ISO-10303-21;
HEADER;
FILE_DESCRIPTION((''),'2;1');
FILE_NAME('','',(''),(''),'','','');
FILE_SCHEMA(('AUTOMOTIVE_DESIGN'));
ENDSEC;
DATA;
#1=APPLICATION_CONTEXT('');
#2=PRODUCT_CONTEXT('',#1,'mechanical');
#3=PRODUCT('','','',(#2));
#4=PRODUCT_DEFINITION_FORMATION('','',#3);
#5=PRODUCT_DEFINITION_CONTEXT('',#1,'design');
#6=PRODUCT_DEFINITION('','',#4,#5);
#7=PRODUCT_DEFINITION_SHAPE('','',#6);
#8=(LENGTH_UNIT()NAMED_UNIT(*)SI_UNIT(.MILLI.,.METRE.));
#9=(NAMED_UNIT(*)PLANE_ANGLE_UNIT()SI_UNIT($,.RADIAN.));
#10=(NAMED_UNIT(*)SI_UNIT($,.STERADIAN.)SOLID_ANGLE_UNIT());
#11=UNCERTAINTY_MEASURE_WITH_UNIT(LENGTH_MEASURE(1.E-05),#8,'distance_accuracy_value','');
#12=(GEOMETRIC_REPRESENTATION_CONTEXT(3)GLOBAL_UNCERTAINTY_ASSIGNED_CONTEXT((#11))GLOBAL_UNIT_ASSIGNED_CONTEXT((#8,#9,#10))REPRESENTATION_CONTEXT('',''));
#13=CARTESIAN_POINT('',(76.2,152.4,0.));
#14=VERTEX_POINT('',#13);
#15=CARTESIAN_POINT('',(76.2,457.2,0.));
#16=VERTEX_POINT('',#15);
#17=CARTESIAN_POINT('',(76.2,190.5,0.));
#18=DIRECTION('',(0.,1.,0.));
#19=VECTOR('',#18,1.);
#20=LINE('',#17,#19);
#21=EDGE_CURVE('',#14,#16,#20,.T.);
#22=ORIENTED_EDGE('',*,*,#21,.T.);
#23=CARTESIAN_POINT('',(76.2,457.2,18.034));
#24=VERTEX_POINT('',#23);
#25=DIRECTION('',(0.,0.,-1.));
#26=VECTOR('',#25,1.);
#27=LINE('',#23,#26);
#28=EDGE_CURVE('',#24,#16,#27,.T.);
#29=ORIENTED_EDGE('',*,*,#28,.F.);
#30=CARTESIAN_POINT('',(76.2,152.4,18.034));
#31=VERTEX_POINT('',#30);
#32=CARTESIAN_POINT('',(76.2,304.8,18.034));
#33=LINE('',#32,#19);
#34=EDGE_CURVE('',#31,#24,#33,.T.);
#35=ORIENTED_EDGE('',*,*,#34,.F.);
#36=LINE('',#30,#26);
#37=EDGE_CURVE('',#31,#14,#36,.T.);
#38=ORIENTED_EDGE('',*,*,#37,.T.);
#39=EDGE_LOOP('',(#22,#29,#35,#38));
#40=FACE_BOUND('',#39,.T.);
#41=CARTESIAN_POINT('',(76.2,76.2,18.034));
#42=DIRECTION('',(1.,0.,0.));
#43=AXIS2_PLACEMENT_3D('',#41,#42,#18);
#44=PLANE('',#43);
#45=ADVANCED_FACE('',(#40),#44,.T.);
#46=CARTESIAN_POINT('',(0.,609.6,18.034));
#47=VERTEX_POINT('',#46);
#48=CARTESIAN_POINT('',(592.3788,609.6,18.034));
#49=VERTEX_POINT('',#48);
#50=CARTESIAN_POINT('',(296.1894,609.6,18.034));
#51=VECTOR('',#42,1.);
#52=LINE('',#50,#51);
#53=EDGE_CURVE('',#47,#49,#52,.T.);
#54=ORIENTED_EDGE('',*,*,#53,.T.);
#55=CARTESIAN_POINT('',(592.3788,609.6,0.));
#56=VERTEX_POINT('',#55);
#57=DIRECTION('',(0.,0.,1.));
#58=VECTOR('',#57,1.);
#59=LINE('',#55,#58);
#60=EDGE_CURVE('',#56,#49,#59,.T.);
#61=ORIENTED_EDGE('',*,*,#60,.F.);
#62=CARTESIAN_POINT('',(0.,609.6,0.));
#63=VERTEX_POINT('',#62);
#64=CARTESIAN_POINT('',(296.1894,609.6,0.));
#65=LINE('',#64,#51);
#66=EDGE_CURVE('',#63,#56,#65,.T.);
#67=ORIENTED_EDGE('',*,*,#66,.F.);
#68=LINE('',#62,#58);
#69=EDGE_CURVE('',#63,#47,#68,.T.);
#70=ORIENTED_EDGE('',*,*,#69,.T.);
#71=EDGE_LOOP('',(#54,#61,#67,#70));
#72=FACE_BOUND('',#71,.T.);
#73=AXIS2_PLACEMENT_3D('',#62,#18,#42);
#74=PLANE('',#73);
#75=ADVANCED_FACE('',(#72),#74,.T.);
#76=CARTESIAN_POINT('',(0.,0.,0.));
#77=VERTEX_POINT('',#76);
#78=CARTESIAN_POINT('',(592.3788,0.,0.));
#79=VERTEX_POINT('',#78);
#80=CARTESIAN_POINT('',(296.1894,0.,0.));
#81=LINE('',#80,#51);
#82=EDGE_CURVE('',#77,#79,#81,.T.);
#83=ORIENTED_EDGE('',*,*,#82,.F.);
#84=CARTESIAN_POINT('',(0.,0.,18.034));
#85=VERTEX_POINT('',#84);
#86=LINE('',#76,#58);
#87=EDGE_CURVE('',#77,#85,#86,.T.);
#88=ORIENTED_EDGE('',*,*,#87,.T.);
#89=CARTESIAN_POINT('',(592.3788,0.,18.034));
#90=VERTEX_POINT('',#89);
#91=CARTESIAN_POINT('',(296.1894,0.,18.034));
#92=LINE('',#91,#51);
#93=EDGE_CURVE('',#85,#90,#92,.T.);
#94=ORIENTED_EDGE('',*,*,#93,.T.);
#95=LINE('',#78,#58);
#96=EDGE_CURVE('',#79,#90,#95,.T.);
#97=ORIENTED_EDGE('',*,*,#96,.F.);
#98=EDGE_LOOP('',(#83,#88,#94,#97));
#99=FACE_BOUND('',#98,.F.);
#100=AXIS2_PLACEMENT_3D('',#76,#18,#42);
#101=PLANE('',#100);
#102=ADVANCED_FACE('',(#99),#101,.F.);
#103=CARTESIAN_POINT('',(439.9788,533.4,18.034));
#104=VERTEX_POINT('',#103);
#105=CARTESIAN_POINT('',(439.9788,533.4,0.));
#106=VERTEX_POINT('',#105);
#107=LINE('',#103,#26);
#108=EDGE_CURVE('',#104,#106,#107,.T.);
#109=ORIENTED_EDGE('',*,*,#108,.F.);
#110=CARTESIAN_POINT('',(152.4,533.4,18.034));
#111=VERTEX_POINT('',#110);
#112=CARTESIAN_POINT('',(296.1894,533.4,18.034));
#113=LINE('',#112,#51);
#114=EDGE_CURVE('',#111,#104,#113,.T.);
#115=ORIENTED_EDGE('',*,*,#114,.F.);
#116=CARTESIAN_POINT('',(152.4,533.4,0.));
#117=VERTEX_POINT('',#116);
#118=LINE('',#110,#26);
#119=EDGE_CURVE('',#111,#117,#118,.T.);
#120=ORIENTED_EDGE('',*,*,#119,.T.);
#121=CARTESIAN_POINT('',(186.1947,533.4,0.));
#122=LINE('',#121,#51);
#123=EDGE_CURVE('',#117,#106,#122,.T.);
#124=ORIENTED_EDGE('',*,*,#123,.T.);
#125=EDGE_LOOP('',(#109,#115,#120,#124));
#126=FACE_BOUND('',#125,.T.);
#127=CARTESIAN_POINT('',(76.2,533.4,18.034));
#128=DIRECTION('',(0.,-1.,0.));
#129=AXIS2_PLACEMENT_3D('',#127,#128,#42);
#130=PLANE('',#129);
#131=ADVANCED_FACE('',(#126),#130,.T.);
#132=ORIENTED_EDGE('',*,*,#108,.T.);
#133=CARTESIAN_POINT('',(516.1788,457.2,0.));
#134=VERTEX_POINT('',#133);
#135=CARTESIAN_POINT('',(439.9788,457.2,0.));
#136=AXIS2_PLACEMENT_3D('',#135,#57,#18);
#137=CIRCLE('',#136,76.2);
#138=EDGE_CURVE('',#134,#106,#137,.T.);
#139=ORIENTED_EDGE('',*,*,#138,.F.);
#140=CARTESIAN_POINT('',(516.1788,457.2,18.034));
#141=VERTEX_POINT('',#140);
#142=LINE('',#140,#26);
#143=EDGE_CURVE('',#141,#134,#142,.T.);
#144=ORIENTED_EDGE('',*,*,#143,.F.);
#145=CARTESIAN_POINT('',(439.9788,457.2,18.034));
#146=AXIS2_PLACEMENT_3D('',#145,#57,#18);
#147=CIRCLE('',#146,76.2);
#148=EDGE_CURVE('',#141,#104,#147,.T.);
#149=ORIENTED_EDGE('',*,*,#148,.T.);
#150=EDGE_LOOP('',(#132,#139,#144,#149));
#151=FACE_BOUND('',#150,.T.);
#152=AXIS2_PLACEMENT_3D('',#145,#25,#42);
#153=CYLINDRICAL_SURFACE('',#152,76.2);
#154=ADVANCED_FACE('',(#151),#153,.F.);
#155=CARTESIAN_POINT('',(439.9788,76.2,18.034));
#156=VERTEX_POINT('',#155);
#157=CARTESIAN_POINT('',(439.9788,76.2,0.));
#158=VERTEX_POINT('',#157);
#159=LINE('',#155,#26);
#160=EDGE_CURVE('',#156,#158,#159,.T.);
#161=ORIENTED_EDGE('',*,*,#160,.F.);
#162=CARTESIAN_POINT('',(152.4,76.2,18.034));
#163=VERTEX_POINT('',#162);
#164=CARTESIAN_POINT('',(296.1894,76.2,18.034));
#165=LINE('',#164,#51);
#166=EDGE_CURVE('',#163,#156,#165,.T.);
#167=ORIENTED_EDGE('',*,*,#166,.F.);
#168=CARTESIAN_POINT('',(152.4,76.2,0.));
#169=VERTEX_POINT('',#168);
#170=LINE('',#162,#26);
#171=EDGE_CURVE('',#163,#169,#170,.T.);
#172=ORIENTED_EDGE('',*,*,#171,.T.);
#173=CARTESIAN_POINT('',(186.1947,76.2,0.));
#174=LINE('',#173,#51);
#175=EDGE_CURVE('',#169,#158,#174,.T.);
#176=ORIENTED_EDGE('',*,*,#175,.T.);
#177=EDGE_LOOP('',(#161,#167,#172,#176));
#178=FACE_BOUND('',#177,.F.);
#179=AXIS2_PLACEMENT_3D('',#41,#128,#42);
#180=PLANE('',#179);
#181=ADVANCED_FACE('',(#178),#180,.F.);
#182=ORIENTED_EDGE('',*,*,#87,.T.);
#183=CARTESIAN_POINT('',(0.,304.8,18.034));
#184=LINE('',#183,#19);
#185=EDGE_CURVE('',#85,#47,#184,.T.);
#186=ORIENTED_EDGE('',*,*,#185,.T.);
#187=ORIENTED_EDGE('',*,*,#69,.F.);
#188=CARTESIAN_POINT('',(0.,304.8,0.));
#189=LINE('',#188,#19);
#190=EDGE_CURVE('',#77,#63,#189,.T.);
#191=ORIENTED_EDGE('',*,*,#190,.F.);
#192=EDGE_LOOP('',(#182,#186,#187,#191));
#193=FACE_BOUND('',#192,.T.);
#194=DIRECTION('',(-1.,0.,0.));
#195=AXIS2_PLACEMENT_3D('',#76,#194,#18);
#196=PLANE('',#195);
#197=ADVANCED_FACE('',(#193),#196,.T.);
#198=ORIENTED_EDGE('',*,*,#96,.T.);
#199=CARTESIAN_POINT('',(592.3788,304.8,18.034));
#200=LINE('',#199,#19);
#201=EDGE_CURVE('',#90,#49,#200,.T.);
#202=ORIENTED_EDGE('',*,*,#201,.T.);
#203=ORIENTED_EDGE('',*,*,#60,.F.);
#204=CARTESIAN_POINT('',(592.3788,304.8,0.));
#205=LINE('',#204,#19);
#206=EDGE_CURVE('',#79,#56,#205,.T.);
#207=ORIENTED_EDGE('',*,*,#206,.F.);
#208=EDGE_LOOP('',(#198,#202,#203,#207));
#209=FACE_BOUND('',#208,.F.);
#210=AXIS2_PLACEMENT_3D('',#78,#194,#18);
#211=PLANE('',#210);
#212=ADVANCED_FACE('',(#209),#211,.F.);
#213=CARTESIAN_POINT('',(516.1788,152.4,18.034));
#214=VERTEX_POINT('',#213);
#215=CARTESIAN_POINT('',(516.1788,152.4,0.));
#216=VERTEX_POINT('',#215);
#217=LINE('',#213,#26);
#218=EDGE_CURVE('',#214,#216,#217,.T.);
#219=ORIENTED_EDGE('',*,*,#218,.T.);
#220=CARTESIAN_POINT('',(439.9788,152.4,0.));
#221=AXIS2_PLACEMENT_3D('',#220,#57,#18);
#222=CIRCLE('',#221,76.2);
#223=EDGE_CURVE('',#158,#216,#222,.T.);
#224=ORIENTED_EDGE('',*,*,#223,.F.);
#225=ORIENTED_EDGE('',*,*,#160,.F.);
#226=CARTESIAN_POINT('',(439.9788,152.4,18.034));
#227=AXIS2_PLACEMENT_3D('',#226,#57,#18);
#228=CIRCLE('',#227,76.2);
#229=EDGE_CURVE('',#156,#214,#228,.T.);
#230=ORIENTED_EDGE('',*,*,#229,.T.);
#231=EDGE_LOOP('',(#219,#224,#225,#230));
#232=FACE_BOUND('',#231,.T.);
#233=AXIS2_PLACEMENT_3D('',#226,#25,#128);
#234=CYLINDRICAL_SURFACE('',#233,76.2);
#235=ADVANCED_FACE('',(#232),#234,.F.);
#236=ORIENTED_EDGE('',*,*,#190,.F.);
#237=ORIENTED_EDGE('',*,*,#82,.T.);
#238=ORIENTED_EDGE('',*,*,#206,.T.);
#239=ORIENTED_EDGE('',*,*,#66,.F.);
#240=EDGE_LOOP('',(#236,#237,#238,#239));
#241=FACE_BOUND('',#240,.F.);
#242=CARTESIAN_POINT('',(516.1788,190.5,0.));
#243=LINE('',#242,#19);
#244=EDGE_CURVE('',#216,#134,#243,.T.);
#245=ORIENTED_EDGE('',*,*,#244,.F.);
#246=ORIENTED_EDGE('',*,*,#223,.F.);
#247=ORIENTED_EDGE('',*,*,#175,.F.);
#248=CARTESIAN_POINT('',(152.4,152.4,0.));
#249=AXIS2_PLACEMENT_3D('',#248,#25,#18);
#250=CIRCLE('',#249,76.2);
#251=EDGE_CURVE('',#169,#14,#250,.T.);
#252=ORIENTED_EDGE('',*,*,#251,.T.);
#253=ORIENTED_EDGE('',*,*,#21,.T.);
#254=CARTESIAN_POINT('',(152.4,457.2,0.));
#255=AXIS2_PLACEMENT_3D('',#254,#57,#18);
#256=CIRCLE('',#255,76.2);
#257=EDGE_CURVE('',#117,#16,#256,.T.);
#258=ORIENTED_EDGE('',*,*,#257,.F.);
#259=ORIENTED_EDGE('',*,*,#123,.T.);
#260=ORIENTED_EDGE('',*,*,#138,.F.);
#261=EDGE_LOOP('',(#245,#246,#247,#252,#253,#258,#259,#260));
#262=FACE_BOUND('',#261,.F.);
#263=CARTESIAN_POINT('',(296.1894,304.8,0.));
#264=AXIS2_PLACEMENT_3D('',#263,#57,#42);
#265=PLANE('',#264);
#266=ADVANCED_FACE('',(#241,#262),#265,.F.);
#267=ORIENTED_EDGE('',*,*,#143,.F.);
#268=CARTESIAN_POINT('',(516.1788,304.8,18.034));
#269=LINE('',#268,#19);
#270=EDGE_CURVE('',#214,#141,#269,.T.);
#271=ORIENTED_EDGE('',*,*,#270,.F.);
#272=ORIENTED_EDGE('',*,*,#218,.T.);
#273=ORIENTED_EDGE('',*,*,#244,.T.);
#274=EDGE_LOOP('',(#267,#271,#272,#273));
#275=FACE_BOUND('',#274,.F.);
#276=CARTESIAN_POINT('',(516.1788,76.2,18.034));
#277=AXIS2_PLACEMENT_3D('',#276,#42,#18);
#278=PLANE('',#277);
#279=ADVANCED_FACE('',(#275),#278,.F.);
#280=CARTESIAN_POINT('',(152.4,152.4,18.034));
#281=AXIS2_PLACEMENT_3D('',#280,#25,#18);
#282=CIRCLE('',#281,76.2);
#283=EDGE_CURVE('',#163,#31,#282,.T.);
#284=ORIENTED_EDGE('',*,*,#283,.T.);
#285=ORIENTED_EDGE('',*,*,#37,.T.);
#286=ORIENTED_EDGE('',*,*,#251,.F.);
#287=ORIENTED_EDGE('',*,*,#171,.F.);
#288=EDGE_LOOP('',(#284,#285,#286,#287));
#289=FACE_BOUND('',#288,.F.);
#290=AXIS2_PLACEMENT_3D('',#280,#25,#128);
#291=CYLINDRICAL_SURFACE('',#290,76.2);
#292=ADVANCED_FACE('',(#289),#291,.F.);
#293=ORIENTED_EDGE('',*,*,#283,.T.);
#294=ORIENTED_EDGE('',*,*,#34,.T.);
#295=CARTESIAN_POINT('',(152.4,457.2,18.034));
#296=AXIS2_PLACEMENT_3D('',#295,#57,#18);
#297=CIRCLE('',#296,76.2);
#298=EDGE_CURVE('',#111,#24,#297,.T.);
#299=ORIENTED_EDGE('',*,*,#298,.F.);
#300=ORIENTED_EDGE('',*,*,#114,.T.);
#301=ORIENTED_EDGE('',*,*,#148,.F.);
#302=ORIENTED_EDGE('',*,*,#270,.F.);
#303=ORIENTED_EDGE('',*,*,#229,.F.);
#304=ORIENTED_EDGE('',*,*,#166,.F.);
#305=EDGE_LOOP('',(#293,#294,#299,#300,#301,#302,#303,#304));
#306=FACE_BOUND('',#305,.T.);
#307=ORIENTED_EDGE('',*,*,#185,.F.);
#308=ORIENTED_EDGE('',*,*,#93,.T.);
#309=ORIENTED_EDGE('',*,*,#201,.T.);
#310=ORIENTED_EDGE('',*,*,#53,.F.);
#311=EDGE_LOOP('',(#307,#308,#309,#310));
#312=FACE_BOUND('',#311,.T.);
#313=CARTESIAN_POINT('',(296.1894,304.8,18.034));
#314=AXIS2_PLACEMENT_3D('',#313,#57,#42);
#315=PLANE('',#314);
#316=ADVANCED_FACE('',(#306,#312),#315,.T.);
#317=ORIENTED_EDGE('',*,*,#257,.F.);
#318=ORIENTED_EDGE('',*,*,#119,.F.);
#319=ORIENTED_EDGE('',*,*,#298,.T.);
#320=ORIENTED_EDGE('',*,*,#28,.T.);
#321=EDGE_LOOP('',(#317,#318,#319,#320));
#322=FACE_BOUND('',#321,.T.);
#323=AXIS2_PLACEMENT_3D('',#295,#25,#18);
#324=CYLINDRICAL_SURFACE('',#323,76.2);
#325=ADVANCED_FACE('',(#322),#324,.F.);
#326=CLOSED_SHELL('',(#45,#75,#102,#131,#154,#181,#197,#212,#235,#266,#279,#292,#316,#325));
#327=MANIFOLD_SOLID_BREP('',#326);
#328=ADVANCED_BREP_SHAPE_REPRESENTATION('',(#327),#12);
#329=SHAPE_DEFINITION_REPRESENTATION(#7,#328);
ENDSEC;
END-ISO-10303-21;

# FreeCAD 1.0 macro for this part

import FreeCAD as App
import Part
import Sketcher

V = App.Vector
Q = App.Units.Quantity


def edges_at(feature, points):
    """Names of the edges that pass closest to the given points."""
    edges = feature.Shape.Edges
    near = lambda p: min(range(len(edges)), key=lambda i: edges[i].distToShape(Part.Vertex(*p))[0])
    return sorted({f"Edge{near(p) + 1}" for p in points})


def add_polygon(sketch, points):
    """Adds a closed chain of lines whose ends are joined by coincident constraints."""
    first, n = sketch.GeometryCount, len(points)
    for a, b in zip(points, points[1:] + points[:1]):
        sketch.addGeometry(Part.LineSegment(App.Vector(*a, 0), App.Vector(*b, 0)), False)
    for i in range(n):
        sketch.addConstraint(Sketcher.Constraint("Coincident", first + i, 2, first + (i + 1) % n, 1))

doc = App.newDocument("Part")
body = doc.addObject("PartDesign::Body", "Body")

# Sketch on XY plane
sketch1 = body.newObject("Sketcher::SketchObject", "Sketch")
sketch1.AttachmentSupport = (doc.getObject("XY_Plane"), [""])
sketch1.MapMode = "FlatFace"
add_polygon(sketch1, [(0, 610), (0, 0), (592, 0), (592, 610)])  # lines 0-3
sketch1.addConstraint([
    Sketcher.Constraint("Vertical", 0),
    Sketcher.Constraint("Horizontal", 1),
    Sketcher.Constraint("Vertical", 2),
    Sketcher.Constraint("Horizontal", 3),
    Sketcher.Constraint("Coincident", 0, 2, -1, 1),
    Sketcher.Constraint("DistanceY", 0, 2, 0, 1, Q("24 in")),
    Sketcher.Constraint("DistanceX", 1, 1, 1, 2, Q("23.322 in")),
])
pad1 = body.newObject("PartDesign::Pad", "Pad")
pad1.Profile = sketch1
pad1.Length = Q("0.71 in")

# Sketch on XY plane
sketch2 = body.newObject("Sketcher::SketchObject", "Sketch001")
sketch2.AttachmentSupport = (doc.getObject("XY_Plane"), [""])
sketch2.MapMode = "FlatFace"
sketch2.AttachmentOffset = App.Placement(V(0, 0, 0.71 * 25.4), App.Rotation())
add_polygon(sketch2, [(76, 533), (76, 76), (516, 76), (516, 533)])  # lines 0-3
sketch2.addConstraint([
    Sketcher.Constraint("Vertical", 0),
    Sketcher.Constraint("Horizontal", 1),
    Sketcher.Constraint("Vertical", 2),
    Sketcher.Constraint("Horizontal", 3),
    Sketcher.Constraint("DistanceY", 0, 2, 0, 1, Q("18 in")),
    Sketcher.Constraint("DistanceX", -1, 1, 0, 2, Q("3 in")),
    Sketcher.Constraint("DistanceY", -1, 1, 0, 2, Q("3 in")),
    Sketcher.Constraint("DistanceX", 1, 1, 1, 2, Q("17.322 in")),
])
pocket1 = body.newObject("PartDesign::Pocket", "Pocket")
pocket1.Profile = sketch2
pocket1.Type = "ThroughAll"
doc.recompute()

fillet = body.newObject("PartDesign::Fillet", "Fillet")
fillet.Base = (pocket1, edges_at(pocket1, [
    (516.179, 533.4, 9.017),
    (76.2, 533.4, 9.017),
    (76.2, 76.2, 9.017),
    (516.179, 76.2, 9.017),
]))
fillet.Radius = Q("3 in")

doc.recompute()
